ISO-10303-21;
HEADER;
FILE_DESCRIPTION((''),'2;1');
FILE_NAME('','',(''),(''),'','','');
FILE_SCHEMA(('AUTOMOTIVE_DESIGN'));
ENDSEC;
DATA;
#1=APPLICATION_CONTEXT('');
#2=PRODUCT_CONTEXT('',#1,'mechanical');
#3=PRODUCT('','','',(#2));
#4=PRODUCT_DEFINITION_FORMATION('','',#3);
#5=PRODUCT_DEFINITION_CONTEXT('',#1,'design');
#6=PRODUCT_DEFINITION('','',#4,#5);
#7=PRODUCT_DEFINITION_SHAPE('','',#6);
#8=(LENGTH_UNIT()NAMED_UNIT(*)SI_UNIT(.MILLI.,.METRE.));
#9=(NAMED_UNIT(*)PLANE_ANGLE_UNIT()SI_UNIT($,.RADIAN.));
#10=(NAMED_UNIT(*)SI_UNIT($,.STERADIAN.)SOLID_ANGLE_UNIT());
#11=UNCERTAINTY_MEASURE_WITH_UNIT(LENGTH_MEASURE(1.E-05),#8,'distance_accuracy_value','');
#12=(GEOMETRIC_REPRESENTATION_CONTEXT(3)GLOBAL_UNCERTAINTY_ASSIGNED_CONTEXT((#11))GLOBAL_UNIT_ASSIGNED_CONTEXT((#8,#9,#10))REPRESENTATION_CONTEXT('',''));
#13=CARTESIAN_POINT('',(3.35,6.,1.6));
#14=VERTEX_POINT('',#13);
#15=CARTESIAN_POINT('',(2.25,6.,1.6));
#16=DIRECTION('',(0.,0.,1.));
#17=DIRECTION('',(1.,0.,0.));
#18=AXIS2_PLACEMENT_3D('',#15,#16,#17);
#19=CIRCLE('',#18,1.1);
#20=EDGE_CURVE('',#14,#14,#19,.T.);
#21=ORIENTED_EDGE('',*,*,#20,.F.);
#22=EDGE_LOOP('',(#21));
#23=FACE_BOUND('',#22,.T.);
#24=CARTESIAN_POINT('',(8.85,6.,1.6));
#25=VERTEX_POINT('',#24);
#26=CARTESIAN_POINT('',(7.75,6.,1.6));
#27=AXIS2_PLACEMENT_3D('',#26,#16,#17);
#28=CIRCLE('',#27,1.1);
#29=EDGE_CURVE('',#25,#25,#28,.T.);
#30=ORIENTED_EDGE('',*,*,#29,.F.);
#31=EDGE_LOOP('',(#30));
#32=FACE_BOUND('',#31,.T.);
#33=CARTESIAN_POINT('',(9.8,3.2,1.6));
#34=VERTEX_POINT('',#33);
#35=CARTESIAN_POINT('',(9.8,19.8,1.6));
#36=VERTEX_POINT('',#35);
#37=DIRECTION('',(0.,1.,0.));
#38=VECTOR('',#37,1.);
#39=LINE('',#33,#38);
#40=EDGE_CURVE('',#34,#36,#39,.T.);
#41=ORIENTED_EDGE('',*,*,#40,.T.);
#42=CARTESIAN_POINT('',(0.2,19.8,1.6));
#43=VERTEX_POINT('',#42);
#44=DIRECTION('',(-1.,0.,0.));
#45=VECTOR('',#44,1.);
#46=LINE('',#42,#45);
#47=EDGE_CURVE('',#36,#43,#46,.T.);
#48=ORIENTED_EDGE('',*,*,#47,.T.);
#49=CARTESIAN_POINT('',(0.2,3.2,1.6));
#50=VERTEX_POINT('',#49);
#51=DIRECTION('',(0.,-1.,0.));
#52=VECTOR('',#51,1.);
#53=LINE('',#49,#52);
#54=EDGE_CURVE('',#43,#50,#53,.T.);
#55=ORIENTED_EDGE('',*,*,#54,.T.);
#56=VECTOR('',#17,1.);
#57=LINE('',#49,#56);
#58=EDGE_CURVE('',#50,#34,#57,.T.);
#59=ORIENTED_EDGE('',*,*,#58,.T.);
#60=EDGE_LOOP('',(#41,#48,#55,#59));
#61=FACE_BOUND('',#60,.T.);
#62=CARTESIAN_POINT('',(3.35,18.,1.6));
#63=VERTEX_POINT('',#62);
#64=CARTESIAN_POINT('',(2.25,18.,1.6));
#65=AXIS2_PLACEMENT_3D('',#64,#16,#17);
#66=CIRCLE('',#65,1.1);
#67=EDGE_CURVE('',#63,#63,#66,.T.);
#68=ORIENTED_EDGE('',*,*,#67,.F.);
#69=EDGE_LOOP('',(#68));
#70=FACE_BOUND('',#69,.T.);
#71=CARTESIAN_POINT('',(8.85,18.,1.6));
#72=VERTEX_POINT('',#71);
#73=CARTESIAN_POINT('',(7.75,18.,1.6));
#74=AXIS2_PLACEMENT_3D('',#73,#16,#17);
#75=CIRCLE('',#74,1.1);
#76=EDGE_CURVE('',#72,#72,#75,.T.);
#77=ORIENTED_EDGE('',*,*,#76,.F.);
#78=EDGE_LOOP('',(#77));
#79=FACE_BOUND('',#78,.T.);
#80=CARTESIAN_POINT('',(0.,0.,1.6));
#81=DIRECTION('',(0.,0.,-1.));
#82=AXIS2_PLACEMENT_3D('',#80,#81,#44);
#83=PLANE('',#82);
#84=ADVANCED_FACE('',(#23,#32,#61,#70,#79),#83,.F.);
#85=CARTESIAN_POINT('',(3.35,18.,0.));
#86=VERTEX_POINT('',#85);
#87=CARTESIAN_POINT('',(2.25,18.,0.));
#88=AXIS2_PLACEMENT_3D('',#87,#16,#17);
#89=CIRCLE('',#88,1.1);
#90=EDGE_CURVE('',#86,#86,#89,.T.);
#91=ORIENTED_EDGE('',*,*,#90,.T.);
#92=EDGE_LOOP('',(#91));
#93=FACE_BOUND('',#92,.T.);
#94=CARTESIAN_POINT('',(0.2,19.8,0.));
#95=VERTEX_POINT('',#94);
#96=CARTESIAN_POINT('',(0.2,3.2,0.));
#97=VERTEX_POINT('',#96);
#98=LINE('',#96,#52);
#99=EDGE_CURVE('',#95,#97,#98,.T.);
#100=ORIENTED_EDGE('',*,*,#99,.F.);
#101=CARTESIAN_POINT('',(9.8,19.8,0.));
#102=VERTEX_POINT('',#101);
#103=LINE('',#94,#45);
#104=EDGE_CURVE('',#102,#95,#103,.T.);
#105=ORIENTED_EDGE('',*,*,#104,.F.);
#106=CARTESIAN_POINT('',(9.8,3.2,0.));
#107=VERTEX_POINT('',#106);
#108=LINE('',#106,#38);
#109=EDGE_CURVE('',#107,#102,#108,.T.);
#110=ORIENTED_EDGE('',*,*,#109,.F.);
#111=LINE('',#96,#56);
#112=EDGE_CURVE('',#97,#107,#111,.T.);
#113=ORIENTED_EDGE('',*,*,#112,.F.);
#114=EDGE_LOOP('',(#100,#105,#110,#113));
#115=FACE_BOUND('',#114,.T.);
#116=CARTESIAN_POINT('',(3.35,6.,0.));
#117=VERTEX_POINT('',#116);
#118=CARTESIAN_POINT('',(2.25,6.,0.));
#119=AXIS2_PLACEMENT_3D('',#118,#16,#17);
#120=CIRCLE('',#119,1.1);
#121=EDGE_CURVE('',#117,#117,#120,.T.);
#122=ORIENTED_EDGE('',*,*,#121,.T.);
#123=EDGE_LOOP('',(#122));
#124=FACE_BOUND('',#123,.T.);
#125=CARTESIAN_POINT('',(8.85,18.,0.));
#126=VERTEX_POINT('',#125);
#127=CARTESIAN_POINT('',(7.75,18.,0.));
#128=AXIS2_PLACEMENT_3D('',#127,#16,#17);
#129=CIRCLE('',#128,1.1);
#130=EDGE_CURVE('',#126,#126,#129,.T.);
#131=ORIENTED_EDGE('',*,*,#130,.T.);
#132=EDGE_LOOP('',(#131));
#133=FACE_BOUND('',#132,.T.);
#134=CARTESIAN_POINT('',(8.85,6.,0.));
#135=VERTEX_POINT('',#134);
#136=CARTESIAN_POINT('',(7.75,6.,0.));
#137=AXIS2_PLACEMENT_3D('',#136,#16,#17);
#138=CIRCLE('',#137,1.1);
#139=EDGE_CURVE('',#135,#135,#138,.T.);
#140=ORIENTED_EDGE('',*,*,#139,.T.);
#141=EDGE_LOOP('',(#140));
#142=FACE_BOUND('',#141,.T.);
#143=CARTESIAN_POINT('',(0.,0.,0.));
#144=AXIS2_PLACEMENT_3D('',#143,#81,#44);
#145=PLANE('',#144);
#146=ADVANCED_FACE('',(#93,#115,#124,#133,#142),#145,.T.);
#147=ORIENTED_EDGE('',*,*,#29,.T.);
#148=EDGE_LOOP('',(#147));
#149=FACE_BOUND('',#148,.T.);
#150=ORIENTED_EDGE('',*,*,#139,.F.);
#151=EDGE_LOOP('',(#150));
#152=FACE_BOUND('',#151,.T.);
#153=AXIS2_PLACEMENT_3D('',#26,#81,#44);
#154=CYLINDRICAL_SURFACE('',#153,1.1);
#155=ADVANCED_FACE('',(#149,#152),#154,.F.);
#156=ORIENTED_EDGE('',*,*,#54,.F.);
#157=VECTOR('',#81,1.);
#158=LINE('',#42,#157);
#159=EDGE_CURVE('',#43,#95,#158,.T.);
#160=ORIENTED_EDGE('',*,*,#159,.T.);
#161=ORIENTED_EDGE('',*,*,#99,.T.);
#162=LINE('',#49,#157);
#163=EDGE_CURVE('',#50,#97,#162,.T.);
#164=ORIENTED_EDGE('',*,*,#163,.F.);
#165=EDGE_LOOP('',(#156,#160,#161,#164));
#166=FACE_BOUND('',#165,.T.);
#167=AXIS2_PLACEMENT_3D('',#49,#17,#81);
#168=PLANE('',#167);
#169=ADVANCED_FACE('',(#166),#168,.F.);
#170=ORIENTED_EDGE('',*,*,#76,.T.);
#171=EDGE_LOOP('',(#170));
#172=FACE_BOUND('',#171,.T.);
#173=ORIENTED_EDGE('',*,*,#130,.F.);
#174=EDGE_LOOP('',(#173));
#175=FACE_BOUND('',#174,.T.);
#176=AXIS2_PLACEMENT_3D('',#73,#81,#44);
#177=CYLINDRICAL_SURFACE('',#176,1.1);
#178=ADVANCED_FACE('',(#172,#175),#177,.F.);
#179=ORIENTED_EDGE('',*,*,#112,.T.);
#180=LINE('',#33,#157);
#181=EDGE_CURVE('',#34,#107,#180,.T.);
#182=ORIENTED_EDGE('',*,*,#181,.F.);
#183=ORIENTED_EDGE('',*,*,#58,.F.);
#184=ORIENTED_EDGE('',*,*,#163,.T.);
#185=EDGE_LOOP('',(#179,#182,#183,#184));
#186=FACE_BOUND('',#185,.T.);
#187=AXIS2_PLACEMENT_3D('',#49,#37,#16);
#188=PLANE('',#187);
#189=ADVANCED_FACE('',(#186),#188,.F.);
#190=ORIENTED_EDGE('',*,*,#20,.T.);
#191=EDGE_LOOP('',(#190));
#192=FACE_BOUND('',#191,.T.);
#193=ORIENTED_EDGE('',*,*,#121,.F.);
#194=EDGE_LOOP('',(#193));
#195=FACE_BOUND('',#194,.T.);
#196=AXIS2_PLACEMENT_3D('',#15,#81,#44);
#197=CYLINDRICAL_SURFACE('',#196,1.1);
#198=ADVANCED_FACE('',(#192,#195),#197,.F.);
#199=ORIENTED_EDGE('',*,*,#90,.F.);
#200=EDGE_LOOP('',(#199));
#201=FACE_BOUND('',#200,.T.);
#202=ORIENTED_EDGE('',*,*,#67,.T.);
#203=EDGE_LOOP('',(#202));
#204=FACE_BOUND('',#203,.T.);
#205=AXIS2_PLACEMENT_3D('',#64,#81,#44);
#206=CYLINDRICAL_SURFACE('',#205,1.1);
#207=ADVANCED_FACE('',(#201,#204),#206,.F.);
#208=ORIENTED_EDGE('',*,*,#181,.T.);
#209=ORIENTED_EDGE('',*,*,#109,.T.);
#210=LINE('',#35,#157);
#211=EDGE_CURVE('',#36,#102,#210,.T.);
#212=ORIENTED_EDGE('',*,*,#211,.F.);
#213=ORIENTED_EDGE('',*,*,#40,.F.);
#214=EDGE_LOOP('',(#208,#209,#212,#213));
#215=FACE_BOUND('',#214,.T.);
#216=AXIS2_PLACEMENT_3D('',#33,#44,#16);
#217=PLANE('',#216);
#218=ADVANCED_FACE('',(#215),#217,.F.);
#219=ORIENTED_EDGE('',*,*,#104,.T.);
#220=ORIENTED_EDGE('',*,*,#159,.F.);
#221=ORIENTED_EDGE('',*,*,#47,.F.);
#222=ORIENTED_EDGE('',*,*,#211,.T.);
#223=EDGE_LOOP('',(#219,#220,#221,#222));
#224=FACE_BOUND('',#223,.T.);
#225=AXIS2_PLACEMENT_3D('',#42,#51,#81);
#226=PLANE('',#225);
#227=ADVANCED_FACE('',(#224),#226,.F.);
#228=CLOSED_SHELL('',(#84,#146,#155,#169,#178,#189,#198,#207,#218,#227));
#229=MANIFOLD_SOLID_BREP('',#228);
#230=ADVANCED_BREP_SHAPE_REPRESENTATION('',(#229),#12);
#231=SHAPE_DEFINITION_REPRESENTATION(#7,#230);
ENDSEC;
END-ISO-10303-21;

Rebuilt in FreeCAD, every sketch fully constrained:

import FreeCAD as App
import Part
import Sketcher
Q = App.Units.Quantity


def add_polygon(sketch, points):
    """Adds a closed chain of lines whose ends are joined by coincident constraints."""
    first, n = sketch.GeometryCount, len(points)
    for a, b in zip(points, points[1:] + points[:1]):
        sketch.addGeometry(Part.LineSegment(App.Vector(*a, 0), App.Vector(*b, 0)), False)
    for i in range(n):
        sketch.addConstraint(Sketcher.Constraint("Coincident", first + i, 2, first + (i + 1) % n, 1))

doc = App.newDocument("Part")
params = doc.addObject("Spreadsheet::Sheet", "Params")
for row, (alias, value) in enumerate([
    ("sketch1_diameter", "2.2 mm"),
    ("sketch1_width", "9.6 mm"),
    ("sketch1_height", "16.6 mm"),
    ("pad1_length", "1.6 mm"),
], start=1):
    params.set(f"A{row}", alias)
    params.set(f"B{row}", "=" + value)
    params.setAlias(f"B{row}", alias)

body = doc.addObject("PartDesign::Body", "Body")

sketch1 = body.newObject("Sketcher::SketchObject", "Sketch")
sketch1.AttachmentSupport = (doc.getObject("XY_Plane"), [""])
sketch1.MapMode = "FlatFace"
add_polygon(sketch1, [(0.2, 19.8), (0.2, 3.2), (9.8, 3.2), (9.8, 19.8)])
sketch1.addGeometry(Part.Circle(App.Vector(2.2, 6, 0), App.Vector(0, 0, 1), 1.1), False)
sketch1.addGeometry(Part.Circle(App.Vector(7.8, 6, 0), App.Vector(0, 0, 1), 1.1), False)
sketch1.addGeometry(Part.Circle(App.Vector(2.2, 18, 0), App.Vector(0, 0, 1), 1.1), False)
sketch1.addGeometry(Part.Circle(App.Vector(7.8, 18, 0), App.Vector(0, 0, 1), 1.1), False)
sketch1.addConstraint([
    Sketcher.Constraint("Vertical", 0),
    Sketcher.Constraint("Horizontal", 1),
    Sketcher.Constraint("Vertical", 2),
    Sketcher.Constraint("Horizontal", 3),
    Sketcher.Constraint("Equal", 4, 5),
    Sketcher.Constraint("Equal", 5, 6),
    Sketcher.Constraint("Equal", 6, 7),
    Sketcher.Constraint("Horizontal", 4, 3, 5, 3),
    Sketcher.Constraint("Horizontal", 6, 3, 7, 3),
    Sketcher.Constraint("Vertical", 4, 3, 6, 3),
    Sketcher.Constraint("Vertical", 5, 3, 7, 3),
    Sketcher.Constraint("Diameter", 4, Q("2.2 mm")),
    Sketcher.Constraint("DistanceX", 1, 1, 1, 2, Q("9.6 mm")),
    Sketcher.Constraint("DistanceY", 0, 2, 0, 1, Q("16.6 mm")),
    Sketcher.Constraint("DistanceY", -1, 1, 4, 3, Q("6 mm")),
    Sketcher.Constraint("DistanceY", -1, 1, 6, 3, Q("18 mm")),
    Sketcher.Constraint("DistanceX", -1, 1, 0, 2, Q("0.2 mm")),
    Sketcher.Constraint("DistanceY", -1, 1, 0, 2, Q("3.2 mm")),
    Sketcher.Constraint("DistanceX", 4, 3, 5, 3, Q("5.5 mm")),
    Sketcher.Constraint("DistanceX", -1, 1, 4, 3, Q("2.25 mm")),
])
sketch1.setExpression("Constraints[15]", "Params.sketch1_diameter")
sketch1.setExpression("Constraints[16]", "Params.sketch1_width")
sketch1.setExpression("Constraints[17]", "Params.sketch1_height")
pad1 = body.newObject("PartDesign::Pad", "Pad")
pad1.Profile = sketch1
pad1.setExpression("Length", "Params.pad1_length")

doc.recompute()
